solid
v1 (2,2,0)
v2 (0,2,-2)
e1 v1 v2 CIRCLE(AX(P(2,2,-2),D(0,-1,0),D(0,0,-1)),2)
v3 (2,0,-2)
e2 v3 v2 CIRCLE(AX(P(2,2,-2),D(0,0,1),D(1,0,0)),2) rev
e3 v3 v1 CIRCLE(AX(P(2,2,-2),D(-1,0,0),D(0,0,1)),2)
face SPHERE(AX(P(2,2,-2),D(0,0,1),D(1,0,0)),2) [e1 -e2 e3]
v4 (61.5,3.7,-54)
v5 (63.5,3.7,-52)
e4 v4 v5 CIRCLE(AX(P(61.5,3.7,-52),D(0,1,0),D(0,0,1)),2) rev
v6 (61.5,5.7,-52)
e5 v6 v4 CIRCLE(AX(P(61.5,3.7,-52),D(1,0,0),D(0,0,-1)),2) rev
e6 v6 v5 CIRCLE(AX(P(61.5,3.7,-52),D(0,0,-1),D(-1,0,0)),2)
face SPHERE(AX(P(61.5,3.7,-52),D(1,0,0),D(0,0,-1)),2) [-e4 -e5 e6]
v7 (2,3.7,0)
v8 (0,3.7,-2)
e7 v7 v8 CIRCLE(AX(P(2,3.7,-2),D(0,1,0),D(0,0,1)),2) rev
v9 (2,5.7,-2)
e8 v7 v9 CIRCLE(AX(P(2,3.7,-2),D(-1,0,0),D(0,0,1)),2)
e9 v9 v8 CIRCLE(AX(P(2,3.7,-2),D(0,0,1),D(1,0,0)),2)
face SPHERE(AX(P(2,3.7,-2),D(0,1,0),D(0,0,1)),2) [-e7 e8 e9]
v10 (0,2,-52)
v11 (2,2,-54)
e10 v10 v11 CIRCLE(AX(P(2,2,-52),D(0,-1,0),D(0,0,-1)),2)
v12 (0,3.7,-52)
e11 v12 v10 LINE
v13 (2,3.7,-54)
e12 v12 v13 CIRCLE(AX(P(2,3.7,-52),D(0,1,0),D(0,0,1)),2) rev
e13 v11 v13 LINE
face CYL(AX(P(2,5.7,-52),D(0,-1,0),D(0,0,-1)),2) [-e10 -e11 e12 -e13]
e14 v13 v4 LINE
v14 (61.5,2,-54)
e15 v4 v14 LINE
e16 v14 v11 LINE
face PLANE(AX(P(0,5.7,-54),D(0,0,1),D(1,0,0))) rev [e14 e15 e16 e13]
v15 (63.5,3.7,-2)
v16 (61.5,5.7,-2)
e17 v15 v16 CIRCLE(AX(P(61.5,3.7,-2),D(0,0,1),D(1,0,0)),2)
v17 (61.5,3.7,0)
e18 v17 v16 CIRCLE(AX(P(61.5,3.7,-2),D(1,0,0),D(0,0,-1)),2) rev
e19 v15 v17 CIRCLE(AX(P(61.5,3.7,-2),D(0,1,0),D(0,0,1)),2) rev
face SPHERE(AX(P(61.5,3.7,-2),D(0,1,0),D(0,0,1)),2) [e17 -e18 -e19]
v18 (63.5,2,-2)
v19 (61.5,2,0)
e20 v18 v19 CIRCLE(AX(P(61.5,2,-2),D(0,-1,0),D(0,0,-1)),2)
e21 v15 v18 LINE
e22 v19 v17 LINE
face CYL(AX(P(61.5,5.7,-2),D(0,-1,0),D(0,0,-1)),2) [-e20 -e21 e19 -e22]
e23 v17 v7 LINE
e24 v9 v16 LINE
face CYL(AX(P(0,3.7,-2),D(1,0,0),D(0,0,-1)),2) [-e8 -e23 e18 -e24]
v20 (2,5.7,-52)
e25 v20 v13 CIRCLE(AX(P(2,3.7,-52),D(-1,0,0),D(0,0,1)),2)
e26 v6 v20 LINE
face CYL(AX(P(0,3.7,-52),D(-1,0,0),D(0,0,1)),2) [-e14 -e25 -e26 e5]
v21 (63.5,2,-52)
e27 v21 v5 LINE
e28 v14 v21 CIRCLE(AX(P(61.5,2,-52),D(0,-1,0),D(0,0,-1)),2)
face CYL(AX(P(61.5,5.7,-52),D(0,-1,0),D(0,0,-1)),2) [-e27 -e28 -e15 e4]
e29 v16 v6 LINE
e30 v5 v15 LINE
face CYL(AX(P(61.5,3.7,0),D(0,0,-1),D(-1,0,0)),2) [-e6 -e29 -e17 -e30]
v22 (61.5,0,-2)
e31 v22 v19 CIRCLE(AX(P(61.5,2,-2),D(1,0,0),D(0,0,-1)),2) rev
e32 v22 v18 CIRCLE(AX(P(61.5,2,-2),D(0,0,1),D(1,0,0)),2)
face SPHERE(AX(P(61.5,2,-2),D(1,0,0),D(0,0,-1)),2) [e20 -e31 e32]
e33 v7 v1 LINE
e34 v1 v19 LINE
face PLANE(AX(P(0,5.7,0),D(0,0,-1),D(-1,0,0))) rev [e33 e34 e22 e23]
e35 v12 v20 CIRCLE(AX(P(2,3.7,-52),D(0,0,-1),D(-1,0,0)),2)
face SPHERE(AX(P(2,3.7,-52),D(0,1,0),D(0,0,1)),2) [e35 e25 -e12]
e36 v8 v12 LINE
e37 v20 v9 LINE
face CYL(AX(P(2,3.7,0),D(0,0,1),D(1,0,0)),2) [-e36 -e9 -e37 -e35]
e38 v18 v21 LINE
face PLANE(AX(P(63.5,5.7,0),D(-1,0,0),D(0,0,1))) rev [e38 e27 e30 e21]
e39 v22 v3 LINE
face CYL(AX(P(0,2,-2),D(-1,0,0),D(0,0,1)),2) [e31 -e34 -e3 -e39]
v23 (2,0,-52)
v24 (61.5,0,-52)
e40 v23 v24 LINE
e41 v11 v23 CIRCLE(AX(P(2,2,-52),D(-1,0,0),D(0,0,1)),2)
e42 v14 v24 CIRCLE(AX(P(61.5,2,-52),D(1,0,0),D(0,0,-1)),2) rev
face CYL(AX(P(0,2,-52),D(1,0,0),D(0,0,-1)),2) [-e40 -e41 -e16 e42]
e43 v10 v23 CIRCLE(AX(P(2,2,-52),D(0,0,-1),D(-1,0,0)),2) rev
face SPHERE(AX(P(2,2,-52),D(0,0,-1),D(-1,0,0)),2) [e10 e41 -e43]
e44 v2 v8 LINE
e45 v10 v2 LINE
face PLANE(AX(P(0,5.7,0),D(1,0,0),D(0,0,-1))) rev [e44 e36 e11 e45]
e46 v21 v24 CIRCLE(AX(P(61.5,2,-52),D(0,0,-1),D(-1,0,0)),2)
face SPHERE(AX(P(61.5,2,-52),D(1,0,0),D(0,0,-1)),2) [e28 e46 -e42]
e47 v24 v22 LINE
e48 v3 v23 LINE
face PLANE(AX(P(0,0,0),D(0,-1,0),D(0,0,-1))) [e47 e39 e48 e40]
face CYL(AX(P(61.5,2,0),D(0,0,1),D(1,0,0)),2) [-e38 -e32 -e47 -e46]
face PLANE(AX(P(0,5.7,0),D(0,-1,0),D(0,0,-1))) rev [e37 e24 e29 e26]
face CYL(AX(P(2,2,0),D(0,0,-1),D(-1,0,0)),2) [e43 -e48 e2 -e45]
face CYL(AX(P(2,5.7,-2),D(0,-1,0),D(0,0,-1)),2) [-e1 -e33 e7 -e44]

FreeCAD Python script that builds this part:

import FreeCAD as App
import Part
import Sketcher
from FreeCAD import Vector


def add_polygon(sketch, points):
    """Adds a closed chain of lines whose ends are joined by coincident constraints."""
    first, n = sketch.GeometryCount, len(points)
    for a, b in zip(points, points[1:] + points[:1]):
        sketch.addGeometry(Part.LineSegment(App.Vector(*a, 0), App.Vector(*b, 0)), False)
    for i in range(n):
        sketch.addConstraint(Sketcher.Constraint("Coincident", first + i, 2, first + (i + 1) % n, 1))

doc = App.newDocument("Part")
body = doc.addObject("PartDesign::Body", "Body")

# Sketch on XZ plane
sketch1 = body.newObject("Sketcher::SketchObject", "Sketch")
sketch1.AttachmentSupport = (doc.getObject("XZ_Plane"), [""])
sketch1.MapMode = "FlatFace"
add_polygon(sketch1, [(0, -54), (0, 0), (64, 0), (64, -54)])  # lines 0-3
sketch1.addConstraint(Sketcher.Constraint("Vertical", 0))
sketch1.addConstraint(Sketcher.Constraint("Horizontal", 1))
sketch1.addConstraint(Sketcher.Constraint("Vertical", 2))
sketch1.addConstraint(Sketcher.Constraint("Horizontal", 3))
sketch1.addConstraint(Sketcher.Constraint("Coincident", 0, 2, -1, 1))
sketch1.addConstraint(Sketcher.Constraint("DistanceY", 0, 1, 0, 2, 54.0))
sketch1.addConstraint(Sketcher.Constraint("DistanceX", 1, 1, 1, 2, 63.5))
pad1 = body.newObject("PartDesign::Pad", "Pad")
pad1.Profile = sketch1
pad1.Length = 5.7
pad1.Reversed = True
doc.recompute()

fillet = body.newObject("PartDesign::Fillet", "Fillet")
fillet.Base = (pad1, ["Edge1"])
fillet.UseAllEdges = True
fillet.Radius = 2

doc.recompute()
